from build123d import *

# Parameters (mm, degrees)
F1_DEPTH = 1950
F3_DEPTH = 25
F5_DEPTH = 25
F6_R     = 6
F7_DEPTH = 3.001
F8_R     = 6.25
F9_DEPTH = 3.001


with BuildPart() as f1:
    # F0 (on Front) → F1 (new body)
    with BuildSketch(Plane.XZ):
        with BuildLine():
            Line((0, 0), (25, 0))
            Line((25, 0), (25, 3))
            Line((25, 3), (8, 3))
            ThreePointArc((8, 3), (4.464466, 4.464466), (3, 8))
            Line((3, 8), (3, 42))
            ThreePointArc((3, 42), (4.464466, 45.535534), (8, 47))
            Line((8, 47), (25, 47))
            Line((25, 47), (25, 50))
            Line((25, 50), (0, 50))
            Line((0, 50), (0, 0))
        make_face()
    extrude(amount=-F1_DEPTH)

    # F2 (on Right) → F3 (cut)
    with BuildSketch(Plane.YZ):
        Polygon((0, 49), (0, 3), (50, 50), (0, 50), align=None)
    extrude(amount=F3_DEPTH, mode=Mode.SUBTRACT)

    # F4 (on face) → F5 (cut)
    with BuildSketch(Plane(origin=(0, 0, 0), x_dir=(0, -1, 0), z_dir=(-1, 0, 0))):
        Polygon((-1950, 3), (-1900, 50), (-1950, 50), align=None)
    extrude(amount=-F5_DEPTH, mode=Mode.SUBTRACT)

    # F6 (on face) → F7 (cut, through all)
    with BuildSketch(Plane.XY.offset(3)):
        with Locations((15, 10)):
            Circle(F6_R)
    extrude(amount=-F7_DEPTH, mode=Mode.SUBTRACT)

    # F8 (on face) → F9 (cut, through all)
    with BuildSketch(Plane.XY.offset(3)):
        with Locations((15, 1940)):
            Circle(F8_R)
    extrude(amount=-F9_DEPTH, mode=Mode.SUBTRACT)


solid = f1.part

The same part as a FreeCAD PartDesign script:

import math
import FreeCAD as App
import Part
import Sketcher

doc = App.newDocument("Part")
body = doc.addObject("PartDesign::Body", "Body")

sketch1 = body.newObject("Sketcher::SketchObject", "Sketch")
sketch1.AttachmentSupport = (doc.getObject("XZ_Plane"), [""])
sketch1.MapMode = "FlatFace"
sketch1.addGeometry(Part.LineSegment(App.Vector(0, 0, 0), App.Vector(25, 0, 0)), False)
sketch1.addGeometry(Part.LineSegment(App.Vector(25, 0, 0), App.Vector(25, 3, 0)), False)
sketch1.addGeometry(Part.LineSegment(App.Vector(25, 3, 0), App.Vector(8, 3, 0)), False)
sketch1.addGeometry(Part.ArcOfCircle(Part.Circle(App.Vector(8, 8, 0), App.Vector(0, 0, 1), 5), math.radians(180), math.radians(270)), False)
sketch1.addGeometry(Part.LineSegment(App.Vector(3, 8, 0), App.Vector(3, 42, 0)), False)
sketch1.addGeometry(Part.ArcOfCircle(Part.Circle(App.Vector(8, 42, 0), App.Vector(0, 0, 1), 5), math.radians(90), math.radians(180)), False)
sketch1.addGeometry(Part.LineSegment(App.Vector(8, 47, 0), App.Vector(25, 47, 0)), False)
sketch1.addGeometry(Part.LineSegment(App.Vector(25, 47, 0), App.Vector(25, 50, 0)), False)
sketch1.addGeometry(Part.LineSegment(App.Vector(25, 50, 0), App.Vector(0, 50, 0)), False)
sketch1.addGeometry(Part.LineSegment(App.Vector(0, 50, 0), App.Vector(0, 0, 0)), False)
sketch1.addConstraint(Sketcher.Constraint("Coincident", 0, 2, 1, 1))
sketch1.addConstraint(Sketcher.Constraint("Coincident", 1, 2, 2, 1))
sketch1.addConstraint(Sketcher.Constraint("Tangent", 2, 2, 3, 2))
sketch1.addConstraint(Sketcher.Constraint("Tangent", 3, 1, 4, 1))
sketch1.addConstraint(Sketcher.Constraint("Tangent", 4, 2, 5, 2))
sketch1.addConstraint(Sketcher.Constraint("Tangent", 5, 1, 6, 1))
sketch1.addConstraint(Sketcher.Constraint("Coincident", 6, 2, 7, 1))
sketch1.addConstraint(Sketcher.Constraint("Coincident", 7, 2, 8, 1))
sketch1.addConstraint(Sketcher.Constraint("Coincident", 8, 2, 9, 1))
sketch1.addConstraint(Sketcher.Constraint("Coincident", 9, 2, 0, 1))
sketch1.addConstraint(Sketcher.Constraint("Horizontal", 0))
sketch1.addConstraint(Sketcher.Constraint("Vertical", 1))
sketch1.addConstraint(Sketcher.Constraint("Horizontal", 2))
sketch1.addConstraint(Sketcher.Constraint("Vertical", 4))
sketch1.addConstraint(Sketcher.Constraint("Horizontal", 6))
sketch1.addConstraint(Sketcher.Constraint("Vertical", 7))
sketch1.addConstraint(Sketcher.Constraint("Horizontal", 8))
sketch1.addConstraint(Sketcher.Constraint("Vertical", 9))
sketch1.addConstraint(Sketcher.Constraint("Coincident", 9, 2, -1, 1))
sketch1.addConstraint(Sketcher.Constraint("Equal", 3, 5))
sketch1.addConstraint(Sketcher.Constraint("Vertical", 1, 2, 6, 2))
sketch1.addConstraint(Sketcher.Constraint("Equal", 1, 7))
sketch1.addConstraint(Sketcher.Constraint("Radius", 3, 5.0))
sketch1.addConstraint(Sketcher.Constraint("DistanceX", 0, 1, 0, 2, 25.0))
sketch1.addConstraint(Sketcher.Constraint("DistanceX", 2, 2, 2, 1, 17.0))
sketch1.addConstraint(Sketcher.Constraint("DistanceY", 1, 1, 1, 2, 3.0))
sketch1.addConstraint(Sketcher.Constraint("DistanceY", 4, 1, 4, 2, 34.0))
pad1 = body.newObject("PartDesign::Pad", "Pad")
pad1.Profile = sketch1
pad1.Length = 1950
pad1.Reversed = True

sketch2 = body.newObject("Sketcher::SketchObject", "Sketch001")
sketch2.AttachmentSupport = (doc.getObject("YZ_Plane"), [""])
sketch2.MapMode = "FlatFace"
sketch2.addGeometry(Part.LineSegment(App.Vector(0, 3, 0), App.Vector(50, 50, 0)), False)
sketch2.addGeometry(Part.LineSegment(App.Vector(50, 50, 0), App.Vector(0, 50, 0)), False)
sketch2.addGeometry(Part.LineSegment(App.Vector(0, 50, 0), App.Vector(0, 3, 0)), False)
sketch2.addConstraint(Sketcher.Constraint("Coincident", 0, 2, 1, 1))
sketch2.addConstraint(Sketcher.Constraint("Coincident", 1, 2, 2, 1))
sketch2.addConstraint(Sketcher.Constraint("Coincident", 2, 2, 0, 1))
sketch2.addConstraint(Sketcher.Constraint("Horizontal", 1))
sketch2.addConstraint(Sketcher.Constraint("Vertical", 2))
sketch2.addConstraint(Sketcher.Constraint("PointOnObject", 1, 2, -2))
sketch2.addConstraint(Sketcher.Constraint("DistanceX", 1, 2, 1, 1, 50.0))
sketch2.addConstraint(Sketcher.Constraint("DistanceY", 2, 2, 2, 1, 47.0))
sketch2.addConstraint(Sketcher.Constraint("DistanceY", -1, 1, 0, 2, 50.0))
pocket1 = body.newObject("PartDesign::Pocket", "Pocket")
pocket1.Profile = sketch2
pocket1.Length = 25
pocket1.Reversed = True

sketch3 = body.newObject("Sketcher::SketchObject", "Sketch002")
sketch3.AttachmentSupport = (doc.getObject("YZ_Plane"), [""])
sketch3.MapMode = "FlatFace"
sketch3.addGeometry(Part.LineSegment(App.Vector(1950, 3, 0), App.Vector(1900, 50, 0)), False)
sketch3.addGeometry(Part.LineSegment(App.Vector(1900, 50, 0), App.Vector(1950, 50, 0)), False)
sketch3.addGeometry(Part.LineSegment(App.Vector(1950, 50, 0), App.Vector(1950, 3, 0)), False)
sketch3.addConstraint(Sketcher.Constraint("Coincident", 0, 2, 1, 1))
sketch3.addConstraint(Sketcher.Constraint("Coincident", 1, 2, 2, 1))
sketch3.addConstraint(Sketcher.Constraint("Coincident", 2, 2, 0, 1))
sketch3.addConstraint(Sketcher.Constraint("Horizontal", 1))
sketch3.addConstraint(Sketcher.Constraint("Vertical", 2))
sketch3.addConstraint(Sketcher.Constraint("DistanceX", 1, 1, 1, 2, 50.0))
sketch3.addConstraint(Sketcher.Constraint("DistanceY", 2, 2, 2, 1, 47.0))
sketch3.addConstraint(Sketcher.Constraint("DistanceX", -1, 1, 0, 2, 1900.0))
sketch3.addConstraint(Sketcher.Constraint("DistanceY", -1, 1, 0, 2, 50.0))
pocket2 = body.newObject("PartDesign::Pocket", "Pocket001")
pocket2.Profile = sketch3
pocket2.Length = 25
pocket2.Reversed = True

sketch4 = body.newObject("Sketcher::SketchObject", "Sketch003")
sketch4.AttachmentSupport = (doc.getObject("XY_Plane"), [""])
sketch4.MapMode = "FlatFace"
sketch4.AttachmentOffset = App.Placement(App.Vector(0, 0, 3), App.Rotation())
sketch4.addGeometry(Part.Circle(App.Vector(15, 10, 0), App.Vector(0, 0, 1), 6), False)
sketch4.addConstraint(Sketcher.Constraint("Diameter", 0, 12.0))
sketch4.addConstraint(Sketcher.Constraint("DistanceX", -1, 1, 0, 3, 15.0))
sketch4.addConstraint(Sketcher.Constraint("DistanceY", -1, 1, 0, 3, 10.0))
pocket3 = body.newObject("PartDesign::Pocket", "Pocket002")
pocket3.Profile = sketch4
pocket3.Type = "ThroughAll"

sketch5 = body.newObject("Sketcher::SketchObject", "Sketch004")
sketch5.AttachmentSupport = (doc.getObject("XY_Plane"), [""])
sketch5.MapMode = "FlatFace"
sketch5.AttachmentOffset = App.Placement(App.Vector(0, 0, 3), App.Rotation())
sketch5.addGeometry(Part.Circle(App.Vector(15, 1940, 0), App.Vector(0, 0, 1), 6), False)
sketch5.addConstraint(Sketcher.Constraint("Diameter", 0, 12.5))
sketch5.addConstraint(Sketcher.Constraint("DistanceX", -1, 1, 0, 3, 15.0))
sketch5.addConstraint(Sketcher.Constraint("DistanceY", -1, 1, 0, 3, 1940.0))
pocket4 = body.newObject("PartDesign::Pocket", "Pocket003")
pocket4.Profile = sketch5
pocket4.Type = "ThroughAll"

doc.recompute()
